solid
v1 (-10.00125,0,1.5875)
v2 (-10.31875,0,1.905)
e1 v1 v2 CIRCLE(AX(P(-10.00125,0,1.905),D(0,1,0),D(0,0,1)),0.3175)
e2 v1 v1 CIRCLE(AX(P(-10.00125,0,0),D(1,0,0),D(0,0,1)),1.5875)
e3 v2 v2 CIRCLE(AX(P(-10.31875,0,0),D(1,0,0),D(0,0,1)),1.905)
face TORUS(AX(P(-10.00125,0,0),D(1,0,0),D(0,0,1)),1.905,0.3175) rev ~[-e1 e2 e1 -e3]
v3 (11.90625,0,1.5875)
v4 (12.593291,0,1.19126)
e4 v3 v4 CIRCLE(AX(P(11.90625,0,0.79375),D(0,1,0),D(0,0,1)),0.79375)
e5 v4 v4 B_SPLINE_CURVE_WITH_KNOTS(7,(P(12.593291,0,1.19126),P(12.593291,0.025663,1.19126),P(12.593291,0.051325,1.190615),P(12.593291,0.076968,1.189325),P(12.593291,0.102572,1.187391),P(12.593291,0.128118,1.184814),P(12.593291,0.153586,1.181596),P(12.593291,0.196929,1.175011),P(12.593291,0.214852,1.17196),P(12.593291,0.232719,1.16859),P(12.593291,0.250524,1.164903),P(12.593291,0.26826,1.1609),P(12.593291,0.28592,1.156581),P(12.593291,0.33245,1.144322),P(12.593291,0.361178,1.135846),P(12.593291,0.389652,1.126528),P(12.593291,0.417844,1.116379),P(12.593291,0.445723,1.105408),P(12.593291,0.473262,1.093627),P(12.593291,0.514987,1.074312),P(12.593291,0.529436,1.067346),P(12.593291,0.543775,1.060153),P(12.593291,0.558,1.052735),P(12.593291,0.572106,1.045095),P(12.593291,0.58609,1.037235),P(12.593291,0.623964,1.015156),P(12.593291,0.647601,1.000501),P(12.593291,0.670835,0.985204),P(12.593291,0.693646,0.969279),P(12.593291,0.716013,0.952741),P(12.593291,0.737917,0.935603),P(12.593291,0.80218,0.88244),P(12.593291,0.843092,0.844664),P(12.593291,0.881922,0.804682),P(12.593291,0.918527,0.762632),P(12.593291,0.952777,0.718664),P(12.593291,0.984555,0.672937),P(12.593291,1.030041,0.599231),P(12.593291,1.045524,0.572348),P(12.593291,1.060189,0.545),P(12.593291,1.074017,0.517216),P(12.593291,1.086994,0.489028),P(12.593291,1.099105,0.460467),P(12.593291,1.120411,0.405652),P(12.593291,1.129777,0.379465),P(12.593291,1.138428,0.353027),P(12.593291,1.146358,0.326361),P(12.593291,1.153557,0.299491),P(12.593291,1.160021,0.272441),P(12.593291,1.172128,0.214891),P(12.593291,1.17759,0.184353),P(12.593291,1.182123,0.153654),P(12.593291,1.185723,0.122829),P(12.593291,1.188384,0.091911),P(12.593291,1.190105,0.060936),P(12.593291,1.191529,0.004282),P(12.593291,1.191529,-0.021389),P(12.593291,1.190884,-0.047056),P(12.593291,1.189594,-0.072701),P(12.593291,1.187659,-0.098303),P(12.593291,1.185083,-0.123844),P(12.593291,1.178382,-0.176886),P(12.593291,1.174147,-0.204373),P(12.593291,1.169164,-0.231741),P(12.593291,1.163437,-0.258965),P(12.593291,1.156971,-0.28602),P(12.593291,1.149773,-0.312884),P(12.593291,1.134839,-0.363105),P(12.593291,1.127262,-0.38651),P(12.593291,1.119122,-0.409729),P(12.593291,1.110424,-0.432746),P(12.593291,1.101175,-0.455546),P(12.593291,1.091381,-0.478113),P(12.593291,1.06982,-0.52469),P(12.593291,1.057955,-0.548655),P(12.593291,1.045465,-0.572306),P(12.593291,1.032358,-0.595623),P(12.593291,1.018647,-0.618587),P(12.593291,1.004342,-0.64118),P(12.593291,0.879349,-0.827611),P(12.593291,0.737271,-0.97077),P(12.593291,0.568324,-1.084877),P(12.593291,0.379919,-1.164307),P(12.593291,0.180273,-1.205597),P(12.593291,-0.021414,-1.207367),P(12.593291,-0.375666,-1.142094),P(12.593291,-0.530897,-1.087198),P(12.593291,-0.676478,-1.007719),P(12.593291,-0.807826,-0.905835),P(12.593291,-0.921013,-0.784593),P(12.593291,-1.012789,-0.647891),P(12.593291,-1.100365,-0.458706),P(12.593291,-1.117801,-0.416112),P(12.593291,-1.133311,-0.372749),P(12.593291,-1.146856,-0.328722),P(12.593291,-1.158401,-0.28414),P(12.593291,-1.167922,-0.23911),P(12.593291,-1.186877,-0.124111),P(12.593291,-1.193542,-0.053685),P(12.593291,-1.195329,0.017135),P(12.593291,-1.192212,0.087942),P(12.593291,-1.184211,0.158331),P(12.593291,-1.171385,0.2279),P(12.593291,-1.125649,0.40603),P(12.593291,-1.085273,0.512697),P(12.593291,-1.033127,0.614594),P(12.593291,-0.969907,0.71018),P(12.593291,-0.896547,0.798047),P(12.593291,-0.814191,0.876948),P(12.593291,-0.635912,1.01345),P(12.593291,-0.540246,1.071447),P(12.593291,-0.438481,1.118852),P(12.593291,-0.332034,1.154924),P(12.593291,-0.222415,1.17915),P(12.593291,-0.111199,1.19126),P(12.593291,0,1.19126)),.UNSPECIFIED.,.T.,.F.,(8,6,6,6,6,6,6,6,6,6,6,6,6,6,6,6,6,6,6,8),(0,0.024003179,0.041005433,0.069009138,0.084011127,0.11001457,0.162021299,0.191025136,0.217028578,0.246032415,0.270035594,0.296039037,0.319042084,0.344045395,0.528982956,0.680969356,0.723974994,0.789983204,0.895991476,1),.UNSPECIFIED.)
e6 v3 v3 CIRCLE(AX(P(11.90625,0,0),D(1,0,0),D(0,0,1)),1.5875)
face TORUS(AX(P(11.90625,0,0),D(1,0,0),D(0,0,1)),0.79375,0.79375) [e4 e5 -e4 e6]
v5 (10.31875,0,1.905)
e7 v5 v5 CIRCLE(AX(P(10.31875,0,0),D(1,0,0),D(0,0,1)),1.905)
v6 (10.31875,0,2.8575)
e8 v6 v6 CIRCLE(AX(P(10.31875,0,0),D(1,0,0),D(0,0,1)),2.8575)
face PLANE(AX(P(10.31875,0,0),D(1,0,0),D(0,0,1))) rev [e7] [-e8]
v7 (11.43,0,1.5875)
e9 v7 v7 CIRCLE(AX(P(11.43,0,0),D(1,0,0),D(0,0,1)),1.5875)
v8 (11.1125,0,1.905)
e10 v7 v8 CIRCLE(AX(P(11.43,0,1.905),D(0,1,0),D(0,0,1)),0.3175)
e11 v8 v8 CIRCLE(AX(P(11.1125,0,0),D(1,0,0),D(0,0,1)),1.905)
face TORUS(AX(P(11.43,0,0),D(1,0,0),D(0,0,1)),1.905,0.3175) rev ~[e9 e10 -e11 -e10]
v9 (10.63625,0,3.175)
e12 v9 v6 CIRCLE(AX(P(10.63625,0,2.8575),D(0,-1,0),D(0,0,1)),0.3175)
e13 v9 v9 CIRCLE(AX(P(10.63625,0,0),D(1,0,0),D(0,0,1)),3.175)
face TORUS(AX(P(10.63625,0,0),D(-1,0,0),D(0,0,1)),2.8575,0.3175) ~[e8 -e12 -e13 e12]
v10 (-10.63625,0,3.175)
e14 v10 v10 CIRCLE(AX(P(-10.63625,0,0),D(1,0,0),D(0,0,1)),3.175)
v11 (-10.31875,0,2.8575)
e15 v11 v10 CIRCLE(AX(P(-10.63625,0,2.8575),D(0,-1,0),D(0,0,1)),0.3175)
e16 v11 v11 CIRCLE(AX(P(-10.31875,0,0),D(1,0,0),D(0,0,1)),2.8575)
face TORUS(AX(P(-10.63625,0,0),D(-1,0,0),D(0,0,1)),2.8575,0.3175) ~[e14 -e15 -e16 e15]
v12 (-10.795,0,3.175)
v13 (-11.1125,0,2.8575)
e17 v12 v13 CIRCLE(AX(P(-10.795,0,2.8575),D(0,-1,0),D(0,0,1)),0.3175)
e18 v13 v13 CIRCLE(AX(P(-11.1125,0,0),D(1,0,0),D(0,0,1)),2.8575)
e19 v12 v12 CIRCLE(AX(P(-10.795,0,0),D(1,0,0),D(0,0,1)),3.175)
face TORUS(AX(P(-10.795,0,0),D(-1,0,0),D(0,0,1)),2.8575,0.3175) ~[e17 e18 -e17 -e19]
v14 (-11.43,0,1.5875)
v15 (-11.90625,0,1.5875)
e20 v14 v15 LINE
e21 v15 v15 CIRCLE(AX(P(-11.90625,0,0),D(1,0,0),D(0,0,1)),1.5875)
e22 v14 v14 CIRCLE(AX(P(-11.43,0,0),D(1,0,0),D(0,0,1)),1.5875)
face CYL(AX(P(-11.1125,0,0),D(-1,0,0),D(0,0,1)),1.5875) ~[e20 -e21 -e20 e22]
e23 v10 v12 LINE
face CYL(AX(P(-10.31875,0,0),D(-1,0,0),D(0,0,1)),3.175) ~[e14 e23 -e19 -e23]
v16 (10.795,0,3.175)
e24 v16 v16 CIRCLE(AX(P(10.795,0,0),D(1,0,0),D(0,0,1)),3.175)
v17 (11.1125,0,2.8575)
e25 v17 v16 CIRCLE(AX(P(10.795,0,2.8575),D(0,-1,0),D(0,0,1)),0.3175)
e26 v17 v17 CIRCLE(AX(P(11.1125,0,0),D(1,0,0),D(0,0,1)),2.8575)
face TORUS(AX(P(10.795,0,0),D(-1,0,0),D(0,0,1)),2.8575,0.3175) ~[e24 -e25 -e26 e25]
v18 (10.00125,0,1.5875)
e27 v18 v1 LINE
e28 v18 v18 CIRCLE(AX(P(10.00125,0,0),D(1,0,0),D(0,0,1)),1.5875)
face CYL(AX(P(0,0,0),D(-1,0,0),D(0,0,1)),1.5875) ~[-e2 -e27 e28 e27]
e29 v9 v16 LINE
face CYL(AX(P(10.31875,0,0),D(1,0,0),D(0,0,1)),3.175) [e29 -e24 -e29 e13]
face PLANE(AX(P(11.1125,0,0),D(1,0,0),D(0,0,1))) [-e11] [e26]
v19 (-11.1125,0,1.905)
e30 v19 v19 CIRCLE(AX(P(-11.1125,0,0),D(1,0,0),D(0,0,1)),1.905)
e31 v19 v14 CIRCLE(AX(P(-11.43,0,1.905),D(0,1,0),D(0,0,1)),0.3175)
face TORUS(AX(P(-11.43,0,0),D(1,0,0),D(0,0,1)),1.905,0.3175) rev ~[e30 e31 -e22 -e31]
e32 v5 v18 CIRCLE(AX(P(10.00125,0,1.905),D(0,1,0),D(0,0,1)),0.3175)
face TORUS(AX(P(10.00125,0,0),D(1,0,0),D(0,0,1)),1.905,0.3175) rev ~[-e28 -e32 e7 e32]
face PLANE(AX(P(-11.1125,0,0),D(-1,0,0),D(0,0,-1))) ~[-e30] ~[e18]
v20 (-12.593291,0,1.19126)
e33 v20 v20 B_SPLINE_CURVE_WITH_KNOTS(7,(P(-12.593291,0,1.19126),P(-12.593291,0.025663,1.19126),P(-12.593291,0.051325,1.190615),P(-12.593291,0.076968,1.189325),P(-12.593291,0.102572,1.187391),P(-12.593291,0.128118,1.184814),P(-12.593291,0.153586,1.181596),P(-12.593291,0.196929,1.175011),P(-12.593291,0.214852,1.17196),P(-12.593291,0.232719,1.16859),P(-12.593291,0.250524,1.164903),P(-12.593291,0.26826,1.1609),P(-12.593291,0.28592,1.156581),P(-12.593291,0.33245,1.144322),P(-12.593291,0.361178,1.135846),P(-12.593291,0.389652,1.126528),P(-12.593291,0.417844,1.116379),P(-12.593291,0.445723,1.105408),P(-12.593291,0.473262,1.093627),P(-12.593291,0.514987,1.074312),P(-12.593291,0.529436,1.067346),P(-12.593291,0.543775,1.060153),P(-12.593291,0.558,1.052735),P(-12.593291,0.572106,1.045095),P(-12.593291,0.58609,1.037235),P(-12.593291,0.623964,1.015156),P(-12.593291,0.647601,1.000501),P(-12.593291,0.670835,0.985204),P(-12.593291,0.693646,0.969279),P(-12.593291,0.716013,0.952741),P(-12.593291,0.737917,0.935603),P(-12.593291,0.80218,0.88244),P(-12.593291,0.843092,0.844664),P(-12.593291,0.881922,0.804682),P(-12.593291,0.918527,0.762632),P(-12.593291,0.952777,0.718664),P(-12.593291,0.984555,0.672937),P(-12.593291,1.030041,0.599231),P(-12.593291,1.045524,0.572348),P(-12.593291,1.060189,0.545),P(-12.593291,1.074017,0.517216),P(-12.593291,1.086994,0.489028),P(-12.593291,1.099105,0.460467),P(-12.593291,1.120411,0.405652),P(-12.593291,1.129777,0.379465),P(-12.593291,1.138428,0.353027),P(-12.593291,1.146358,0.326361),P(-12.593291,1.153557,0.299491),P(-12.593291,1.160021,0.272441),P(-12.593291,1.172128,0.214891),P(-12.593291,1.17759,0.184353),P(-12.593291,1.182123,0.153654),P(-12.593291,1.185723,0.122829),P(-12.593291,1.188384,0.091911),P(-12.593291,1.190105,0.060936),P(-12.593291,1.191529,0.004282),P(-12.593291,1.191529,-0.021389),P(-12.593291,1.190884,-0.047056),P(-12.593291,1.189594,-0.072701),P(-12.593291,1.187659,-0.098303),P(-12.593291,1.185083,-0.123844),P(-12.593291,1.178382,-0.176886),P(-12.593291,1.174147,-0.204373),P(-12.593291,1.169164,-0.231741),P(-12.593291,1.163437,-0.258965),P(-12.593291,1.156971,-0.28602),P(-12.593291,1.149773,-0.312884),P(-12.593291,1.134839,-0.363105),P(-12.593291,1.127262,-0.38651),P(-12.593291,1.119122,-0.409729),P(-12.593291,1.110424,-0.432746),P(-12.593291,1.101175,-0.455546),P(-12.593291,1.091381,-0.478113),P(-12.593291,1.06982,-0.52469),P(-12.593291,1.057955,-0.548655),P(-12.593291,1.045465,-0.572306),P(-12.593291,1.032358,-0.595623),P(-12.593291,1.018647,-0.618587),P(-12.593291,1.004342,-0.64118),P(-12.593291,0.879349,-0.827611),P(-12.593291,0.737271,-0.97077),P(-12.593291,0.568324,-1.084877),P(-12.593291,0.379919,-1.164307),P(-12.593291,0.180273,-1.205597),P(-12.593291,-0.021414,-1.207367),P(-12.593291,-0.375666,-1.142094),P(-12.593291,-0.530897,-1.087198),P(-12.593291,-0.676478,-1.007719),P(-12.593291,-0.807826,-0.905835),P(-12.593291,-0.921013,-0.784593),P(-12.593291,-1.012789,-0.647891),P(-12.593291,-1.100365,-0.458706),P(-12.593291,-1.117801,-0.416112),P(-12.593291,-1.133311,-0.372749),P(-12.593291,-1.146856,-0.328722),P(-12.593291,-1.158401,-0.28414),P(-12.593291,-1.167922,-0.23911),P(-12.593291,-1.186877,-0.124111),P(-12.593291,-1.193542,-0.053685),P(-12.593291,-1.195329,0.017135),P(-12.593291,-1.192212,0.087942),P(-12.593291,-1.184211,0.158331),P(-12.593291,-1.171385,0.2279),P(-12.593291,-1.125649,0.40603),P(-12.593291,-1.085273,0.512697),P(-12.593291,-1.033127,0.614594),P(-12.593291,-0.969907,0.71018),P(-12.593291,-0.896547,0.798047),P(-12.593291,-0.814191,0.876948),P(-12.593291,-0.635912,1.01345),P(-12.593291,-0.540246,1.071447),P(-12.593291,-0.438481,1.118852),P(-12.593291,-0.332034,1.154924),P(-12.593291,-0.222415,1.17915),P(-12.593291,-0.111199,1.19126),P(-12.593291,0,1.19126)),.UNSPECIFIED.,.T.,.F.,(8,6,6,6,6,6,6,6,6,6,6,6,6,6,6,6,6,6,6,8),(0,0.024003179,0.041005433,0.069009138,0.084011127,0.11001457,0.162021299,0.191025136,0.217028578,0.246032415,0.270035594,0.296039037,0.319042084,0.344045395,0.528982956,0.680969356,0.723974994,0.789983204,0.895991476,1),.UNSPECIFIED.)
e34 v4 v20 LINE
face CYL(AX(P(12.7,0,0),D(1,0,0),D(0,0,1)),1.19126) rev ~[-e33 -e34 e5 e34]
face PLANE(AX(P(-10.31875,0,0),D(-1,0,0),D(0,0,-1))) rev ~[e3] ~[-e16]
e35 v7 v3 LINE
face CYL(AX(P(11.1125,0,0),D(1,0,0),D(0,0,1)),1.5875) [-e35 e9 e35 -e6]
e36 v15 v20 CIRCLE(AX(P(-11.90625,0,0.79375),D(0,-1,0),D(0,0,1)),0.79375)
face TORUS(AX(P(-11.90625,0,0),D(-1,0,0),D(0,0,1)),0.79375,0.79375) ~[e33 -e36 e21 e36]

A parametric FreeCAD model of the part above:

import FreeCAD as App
import Part
import Sketcher
from FreeCAD import Vector
Q = App.Units.Quantity


def edges_at(feature, points):
    """Names of the edges that pass closest to the given points."""
    edges = feature.Shape.Edges
    near = lambda p: min(range(len(edges)), key=lambda i: edges[i].distToShape(Part.Vertex(*p))[0])
    return sorted({f"Edge{near(p) + 1}" for p in points})

doc = App.newDocument("Part")
body = doc.addObject("PartDesign::Body", "Body")

# Sketch on XZ plane
sketch1 = body.newObject("Sketcher::SketchObject", "Sketch")
sketch1.AttachmentSupport = (doc.getObject("XZ_Plane"), [""])
sketch1.MapMode = "FlatFace"
sketch1.addGeometry([
    Part.LineSegment(Vector(0, 1.6, 0), Vector(0, 0, 0)),  # 0
    Part.LineSegment(Vector(0, 0, 0), Vector(12.7, 0, 0)),  # 1
    Part.LineSegment(Vector(12.7, 0, 0), Vector(12.7, 1.6, 0)),  # 2
    Part.LineSegment(Vector(12.7, 1.6, 0), Vector(11.1, 1.6, 0)),  # 3
    Part.LineSegment(Vector(11.1, 1.6, 0), Vector(11.1, 3.2, 0)),  # 4
    Part.LineSegment(Vector(11.1, 3.2, 0), Vector(10.3, 3.2, 0)),  # 5
    Part.LineSegment(Vector(10.3, 3.2, 0), Vector(10.3, 1.6, 0)),  # 6
    Part.LineSegment(Vector(10.3, 1.6, 0), Vector(0, 1.6, 0)),  # 7
], False)
sketch1.addConstraint([
    Sketcher.Constraint("Coincident", 0, 2, 1, 1),
    Sketcher.Constraint("Coincident", 1, 2, 2, 1),
    Sketcher.Constraint("Coincident", 2, 2, 3, 1),
    Sketcher.Constraint("Coincident", 3, 2, 4, 1),
    Sketcher.Constraint("Coincident", 4, 2, 5, 1),
    Sketcher.Constraint("Coincident", 5, 2, 6, 1),
    Sketcher.Constraint("Coincident", 6, 2, 7, 1),
    Sketcher.Constraint("Coincident", 7, 2, 0, 1),
    Sketcher.Constraint("Vertical", 0),
    Sketcher.Constraint("Horizontal", 1),
    Sketcher.Constraint("Vertical", 2),
    Sketcher.Constraint("Horizontal", 3),
    Sketcher.Constraint("Vertical", 4),
    Sketcher.Constraint("Horizontal", 5),
    Sketcher.Constraint("Vertical", 6),
    Sketcher.Constraint("Horizontal", 7),
    Sketcher.Constraint("Coincident", 0, 2, -1, 1),
    Sketcher.Constraint("Horizontal", 3, 2, 6, 2),
    Sketcher.Constraint("Equal", 3, 0),
    Sketcher.Constraint("Equal", 2, 4),
    Sketcher.Constraint("DistanceX", 1, 1, 1, 2, Q("0.5 in")),
    Sketcher.Constraint("DistanceX", 3, 2, 3, 1, Q("0.0625 in")),
    Sketcher.Constraint("DistanceX", 5, 2, 5, 1, Q("0.03125 in")),
])
revolution = body.newObject("PartDesign::Revolution", "Revolution")
revolution.Profile = sketch1
revolution.ReferenceAxis = (sketch1, ["H_Axis"])
revolution.Angle = 360
doc.recompute()

mirrored = body.newObject("PartDesign::Mirrored", "Mirrored")
mirrored.Originals = [revolution]
mirrored.MirrorPlane = (doc.getObject("YZ_Plane"), [""])
body.Tip = mirrored
doc.recompute()

fillet = body.newObject("PartDesign::Fillet", "Fillet")
fillet.Base = (mirrored, edges_at(mirrored, [(12.7, 0, -1.587), (-12.7, 0, -1.587)]))
fillet.Radius = Q("0.03125 in")
doc.recompute()

fillet2 = body.newObject("PartDesign::Fillet", "Fillet001")
fillet2.Base = (fillet, edges_at(fillet, [
    (-11.113, 0, -3.175),
    (-11.113, 0, -1.587),
    (-10.319, 0, -1.587),
    (-10.319, 0, -3.175),
    (11.113, 0, -3.175),
    (11.113, 0, -1.587),
    (10.319, 0, -1.587),
    (10.319, 0, -3.175),
]))
fillet2.Radius = Q("0.0125 in")

# Sketch on YZ plane
sketch2 = body.newObject("Sketcher::SketchObject", "Sketch001")
sketch2.AttachmentSupport = (doc.getObject("YZ_Plane"), [""])
sketch2.MapMode = "FlatFace"
sketch2.AttachmentOffset = App.Placement(Vector(0, 0, 0.5 * 25.4), App.Rotation())
sketch2.addGeometry(Part.Circle(Vector(0, 0, 0), Vector(0, 0, 1), 1.2), False)
sketch2.addConstraint([
    Sketcher.Constraint("Coincident", 0, 3, -1, 1),
    Sketcher.Constraint("Diameter", 0, Q("0.0938 in")),
])
pocket1 = body.newObject("PartDesign::Pocket", "Pocket")
pocket1.Profile = sketch2
pocket1.Type = "ThroughAll"

doc.recompute()
